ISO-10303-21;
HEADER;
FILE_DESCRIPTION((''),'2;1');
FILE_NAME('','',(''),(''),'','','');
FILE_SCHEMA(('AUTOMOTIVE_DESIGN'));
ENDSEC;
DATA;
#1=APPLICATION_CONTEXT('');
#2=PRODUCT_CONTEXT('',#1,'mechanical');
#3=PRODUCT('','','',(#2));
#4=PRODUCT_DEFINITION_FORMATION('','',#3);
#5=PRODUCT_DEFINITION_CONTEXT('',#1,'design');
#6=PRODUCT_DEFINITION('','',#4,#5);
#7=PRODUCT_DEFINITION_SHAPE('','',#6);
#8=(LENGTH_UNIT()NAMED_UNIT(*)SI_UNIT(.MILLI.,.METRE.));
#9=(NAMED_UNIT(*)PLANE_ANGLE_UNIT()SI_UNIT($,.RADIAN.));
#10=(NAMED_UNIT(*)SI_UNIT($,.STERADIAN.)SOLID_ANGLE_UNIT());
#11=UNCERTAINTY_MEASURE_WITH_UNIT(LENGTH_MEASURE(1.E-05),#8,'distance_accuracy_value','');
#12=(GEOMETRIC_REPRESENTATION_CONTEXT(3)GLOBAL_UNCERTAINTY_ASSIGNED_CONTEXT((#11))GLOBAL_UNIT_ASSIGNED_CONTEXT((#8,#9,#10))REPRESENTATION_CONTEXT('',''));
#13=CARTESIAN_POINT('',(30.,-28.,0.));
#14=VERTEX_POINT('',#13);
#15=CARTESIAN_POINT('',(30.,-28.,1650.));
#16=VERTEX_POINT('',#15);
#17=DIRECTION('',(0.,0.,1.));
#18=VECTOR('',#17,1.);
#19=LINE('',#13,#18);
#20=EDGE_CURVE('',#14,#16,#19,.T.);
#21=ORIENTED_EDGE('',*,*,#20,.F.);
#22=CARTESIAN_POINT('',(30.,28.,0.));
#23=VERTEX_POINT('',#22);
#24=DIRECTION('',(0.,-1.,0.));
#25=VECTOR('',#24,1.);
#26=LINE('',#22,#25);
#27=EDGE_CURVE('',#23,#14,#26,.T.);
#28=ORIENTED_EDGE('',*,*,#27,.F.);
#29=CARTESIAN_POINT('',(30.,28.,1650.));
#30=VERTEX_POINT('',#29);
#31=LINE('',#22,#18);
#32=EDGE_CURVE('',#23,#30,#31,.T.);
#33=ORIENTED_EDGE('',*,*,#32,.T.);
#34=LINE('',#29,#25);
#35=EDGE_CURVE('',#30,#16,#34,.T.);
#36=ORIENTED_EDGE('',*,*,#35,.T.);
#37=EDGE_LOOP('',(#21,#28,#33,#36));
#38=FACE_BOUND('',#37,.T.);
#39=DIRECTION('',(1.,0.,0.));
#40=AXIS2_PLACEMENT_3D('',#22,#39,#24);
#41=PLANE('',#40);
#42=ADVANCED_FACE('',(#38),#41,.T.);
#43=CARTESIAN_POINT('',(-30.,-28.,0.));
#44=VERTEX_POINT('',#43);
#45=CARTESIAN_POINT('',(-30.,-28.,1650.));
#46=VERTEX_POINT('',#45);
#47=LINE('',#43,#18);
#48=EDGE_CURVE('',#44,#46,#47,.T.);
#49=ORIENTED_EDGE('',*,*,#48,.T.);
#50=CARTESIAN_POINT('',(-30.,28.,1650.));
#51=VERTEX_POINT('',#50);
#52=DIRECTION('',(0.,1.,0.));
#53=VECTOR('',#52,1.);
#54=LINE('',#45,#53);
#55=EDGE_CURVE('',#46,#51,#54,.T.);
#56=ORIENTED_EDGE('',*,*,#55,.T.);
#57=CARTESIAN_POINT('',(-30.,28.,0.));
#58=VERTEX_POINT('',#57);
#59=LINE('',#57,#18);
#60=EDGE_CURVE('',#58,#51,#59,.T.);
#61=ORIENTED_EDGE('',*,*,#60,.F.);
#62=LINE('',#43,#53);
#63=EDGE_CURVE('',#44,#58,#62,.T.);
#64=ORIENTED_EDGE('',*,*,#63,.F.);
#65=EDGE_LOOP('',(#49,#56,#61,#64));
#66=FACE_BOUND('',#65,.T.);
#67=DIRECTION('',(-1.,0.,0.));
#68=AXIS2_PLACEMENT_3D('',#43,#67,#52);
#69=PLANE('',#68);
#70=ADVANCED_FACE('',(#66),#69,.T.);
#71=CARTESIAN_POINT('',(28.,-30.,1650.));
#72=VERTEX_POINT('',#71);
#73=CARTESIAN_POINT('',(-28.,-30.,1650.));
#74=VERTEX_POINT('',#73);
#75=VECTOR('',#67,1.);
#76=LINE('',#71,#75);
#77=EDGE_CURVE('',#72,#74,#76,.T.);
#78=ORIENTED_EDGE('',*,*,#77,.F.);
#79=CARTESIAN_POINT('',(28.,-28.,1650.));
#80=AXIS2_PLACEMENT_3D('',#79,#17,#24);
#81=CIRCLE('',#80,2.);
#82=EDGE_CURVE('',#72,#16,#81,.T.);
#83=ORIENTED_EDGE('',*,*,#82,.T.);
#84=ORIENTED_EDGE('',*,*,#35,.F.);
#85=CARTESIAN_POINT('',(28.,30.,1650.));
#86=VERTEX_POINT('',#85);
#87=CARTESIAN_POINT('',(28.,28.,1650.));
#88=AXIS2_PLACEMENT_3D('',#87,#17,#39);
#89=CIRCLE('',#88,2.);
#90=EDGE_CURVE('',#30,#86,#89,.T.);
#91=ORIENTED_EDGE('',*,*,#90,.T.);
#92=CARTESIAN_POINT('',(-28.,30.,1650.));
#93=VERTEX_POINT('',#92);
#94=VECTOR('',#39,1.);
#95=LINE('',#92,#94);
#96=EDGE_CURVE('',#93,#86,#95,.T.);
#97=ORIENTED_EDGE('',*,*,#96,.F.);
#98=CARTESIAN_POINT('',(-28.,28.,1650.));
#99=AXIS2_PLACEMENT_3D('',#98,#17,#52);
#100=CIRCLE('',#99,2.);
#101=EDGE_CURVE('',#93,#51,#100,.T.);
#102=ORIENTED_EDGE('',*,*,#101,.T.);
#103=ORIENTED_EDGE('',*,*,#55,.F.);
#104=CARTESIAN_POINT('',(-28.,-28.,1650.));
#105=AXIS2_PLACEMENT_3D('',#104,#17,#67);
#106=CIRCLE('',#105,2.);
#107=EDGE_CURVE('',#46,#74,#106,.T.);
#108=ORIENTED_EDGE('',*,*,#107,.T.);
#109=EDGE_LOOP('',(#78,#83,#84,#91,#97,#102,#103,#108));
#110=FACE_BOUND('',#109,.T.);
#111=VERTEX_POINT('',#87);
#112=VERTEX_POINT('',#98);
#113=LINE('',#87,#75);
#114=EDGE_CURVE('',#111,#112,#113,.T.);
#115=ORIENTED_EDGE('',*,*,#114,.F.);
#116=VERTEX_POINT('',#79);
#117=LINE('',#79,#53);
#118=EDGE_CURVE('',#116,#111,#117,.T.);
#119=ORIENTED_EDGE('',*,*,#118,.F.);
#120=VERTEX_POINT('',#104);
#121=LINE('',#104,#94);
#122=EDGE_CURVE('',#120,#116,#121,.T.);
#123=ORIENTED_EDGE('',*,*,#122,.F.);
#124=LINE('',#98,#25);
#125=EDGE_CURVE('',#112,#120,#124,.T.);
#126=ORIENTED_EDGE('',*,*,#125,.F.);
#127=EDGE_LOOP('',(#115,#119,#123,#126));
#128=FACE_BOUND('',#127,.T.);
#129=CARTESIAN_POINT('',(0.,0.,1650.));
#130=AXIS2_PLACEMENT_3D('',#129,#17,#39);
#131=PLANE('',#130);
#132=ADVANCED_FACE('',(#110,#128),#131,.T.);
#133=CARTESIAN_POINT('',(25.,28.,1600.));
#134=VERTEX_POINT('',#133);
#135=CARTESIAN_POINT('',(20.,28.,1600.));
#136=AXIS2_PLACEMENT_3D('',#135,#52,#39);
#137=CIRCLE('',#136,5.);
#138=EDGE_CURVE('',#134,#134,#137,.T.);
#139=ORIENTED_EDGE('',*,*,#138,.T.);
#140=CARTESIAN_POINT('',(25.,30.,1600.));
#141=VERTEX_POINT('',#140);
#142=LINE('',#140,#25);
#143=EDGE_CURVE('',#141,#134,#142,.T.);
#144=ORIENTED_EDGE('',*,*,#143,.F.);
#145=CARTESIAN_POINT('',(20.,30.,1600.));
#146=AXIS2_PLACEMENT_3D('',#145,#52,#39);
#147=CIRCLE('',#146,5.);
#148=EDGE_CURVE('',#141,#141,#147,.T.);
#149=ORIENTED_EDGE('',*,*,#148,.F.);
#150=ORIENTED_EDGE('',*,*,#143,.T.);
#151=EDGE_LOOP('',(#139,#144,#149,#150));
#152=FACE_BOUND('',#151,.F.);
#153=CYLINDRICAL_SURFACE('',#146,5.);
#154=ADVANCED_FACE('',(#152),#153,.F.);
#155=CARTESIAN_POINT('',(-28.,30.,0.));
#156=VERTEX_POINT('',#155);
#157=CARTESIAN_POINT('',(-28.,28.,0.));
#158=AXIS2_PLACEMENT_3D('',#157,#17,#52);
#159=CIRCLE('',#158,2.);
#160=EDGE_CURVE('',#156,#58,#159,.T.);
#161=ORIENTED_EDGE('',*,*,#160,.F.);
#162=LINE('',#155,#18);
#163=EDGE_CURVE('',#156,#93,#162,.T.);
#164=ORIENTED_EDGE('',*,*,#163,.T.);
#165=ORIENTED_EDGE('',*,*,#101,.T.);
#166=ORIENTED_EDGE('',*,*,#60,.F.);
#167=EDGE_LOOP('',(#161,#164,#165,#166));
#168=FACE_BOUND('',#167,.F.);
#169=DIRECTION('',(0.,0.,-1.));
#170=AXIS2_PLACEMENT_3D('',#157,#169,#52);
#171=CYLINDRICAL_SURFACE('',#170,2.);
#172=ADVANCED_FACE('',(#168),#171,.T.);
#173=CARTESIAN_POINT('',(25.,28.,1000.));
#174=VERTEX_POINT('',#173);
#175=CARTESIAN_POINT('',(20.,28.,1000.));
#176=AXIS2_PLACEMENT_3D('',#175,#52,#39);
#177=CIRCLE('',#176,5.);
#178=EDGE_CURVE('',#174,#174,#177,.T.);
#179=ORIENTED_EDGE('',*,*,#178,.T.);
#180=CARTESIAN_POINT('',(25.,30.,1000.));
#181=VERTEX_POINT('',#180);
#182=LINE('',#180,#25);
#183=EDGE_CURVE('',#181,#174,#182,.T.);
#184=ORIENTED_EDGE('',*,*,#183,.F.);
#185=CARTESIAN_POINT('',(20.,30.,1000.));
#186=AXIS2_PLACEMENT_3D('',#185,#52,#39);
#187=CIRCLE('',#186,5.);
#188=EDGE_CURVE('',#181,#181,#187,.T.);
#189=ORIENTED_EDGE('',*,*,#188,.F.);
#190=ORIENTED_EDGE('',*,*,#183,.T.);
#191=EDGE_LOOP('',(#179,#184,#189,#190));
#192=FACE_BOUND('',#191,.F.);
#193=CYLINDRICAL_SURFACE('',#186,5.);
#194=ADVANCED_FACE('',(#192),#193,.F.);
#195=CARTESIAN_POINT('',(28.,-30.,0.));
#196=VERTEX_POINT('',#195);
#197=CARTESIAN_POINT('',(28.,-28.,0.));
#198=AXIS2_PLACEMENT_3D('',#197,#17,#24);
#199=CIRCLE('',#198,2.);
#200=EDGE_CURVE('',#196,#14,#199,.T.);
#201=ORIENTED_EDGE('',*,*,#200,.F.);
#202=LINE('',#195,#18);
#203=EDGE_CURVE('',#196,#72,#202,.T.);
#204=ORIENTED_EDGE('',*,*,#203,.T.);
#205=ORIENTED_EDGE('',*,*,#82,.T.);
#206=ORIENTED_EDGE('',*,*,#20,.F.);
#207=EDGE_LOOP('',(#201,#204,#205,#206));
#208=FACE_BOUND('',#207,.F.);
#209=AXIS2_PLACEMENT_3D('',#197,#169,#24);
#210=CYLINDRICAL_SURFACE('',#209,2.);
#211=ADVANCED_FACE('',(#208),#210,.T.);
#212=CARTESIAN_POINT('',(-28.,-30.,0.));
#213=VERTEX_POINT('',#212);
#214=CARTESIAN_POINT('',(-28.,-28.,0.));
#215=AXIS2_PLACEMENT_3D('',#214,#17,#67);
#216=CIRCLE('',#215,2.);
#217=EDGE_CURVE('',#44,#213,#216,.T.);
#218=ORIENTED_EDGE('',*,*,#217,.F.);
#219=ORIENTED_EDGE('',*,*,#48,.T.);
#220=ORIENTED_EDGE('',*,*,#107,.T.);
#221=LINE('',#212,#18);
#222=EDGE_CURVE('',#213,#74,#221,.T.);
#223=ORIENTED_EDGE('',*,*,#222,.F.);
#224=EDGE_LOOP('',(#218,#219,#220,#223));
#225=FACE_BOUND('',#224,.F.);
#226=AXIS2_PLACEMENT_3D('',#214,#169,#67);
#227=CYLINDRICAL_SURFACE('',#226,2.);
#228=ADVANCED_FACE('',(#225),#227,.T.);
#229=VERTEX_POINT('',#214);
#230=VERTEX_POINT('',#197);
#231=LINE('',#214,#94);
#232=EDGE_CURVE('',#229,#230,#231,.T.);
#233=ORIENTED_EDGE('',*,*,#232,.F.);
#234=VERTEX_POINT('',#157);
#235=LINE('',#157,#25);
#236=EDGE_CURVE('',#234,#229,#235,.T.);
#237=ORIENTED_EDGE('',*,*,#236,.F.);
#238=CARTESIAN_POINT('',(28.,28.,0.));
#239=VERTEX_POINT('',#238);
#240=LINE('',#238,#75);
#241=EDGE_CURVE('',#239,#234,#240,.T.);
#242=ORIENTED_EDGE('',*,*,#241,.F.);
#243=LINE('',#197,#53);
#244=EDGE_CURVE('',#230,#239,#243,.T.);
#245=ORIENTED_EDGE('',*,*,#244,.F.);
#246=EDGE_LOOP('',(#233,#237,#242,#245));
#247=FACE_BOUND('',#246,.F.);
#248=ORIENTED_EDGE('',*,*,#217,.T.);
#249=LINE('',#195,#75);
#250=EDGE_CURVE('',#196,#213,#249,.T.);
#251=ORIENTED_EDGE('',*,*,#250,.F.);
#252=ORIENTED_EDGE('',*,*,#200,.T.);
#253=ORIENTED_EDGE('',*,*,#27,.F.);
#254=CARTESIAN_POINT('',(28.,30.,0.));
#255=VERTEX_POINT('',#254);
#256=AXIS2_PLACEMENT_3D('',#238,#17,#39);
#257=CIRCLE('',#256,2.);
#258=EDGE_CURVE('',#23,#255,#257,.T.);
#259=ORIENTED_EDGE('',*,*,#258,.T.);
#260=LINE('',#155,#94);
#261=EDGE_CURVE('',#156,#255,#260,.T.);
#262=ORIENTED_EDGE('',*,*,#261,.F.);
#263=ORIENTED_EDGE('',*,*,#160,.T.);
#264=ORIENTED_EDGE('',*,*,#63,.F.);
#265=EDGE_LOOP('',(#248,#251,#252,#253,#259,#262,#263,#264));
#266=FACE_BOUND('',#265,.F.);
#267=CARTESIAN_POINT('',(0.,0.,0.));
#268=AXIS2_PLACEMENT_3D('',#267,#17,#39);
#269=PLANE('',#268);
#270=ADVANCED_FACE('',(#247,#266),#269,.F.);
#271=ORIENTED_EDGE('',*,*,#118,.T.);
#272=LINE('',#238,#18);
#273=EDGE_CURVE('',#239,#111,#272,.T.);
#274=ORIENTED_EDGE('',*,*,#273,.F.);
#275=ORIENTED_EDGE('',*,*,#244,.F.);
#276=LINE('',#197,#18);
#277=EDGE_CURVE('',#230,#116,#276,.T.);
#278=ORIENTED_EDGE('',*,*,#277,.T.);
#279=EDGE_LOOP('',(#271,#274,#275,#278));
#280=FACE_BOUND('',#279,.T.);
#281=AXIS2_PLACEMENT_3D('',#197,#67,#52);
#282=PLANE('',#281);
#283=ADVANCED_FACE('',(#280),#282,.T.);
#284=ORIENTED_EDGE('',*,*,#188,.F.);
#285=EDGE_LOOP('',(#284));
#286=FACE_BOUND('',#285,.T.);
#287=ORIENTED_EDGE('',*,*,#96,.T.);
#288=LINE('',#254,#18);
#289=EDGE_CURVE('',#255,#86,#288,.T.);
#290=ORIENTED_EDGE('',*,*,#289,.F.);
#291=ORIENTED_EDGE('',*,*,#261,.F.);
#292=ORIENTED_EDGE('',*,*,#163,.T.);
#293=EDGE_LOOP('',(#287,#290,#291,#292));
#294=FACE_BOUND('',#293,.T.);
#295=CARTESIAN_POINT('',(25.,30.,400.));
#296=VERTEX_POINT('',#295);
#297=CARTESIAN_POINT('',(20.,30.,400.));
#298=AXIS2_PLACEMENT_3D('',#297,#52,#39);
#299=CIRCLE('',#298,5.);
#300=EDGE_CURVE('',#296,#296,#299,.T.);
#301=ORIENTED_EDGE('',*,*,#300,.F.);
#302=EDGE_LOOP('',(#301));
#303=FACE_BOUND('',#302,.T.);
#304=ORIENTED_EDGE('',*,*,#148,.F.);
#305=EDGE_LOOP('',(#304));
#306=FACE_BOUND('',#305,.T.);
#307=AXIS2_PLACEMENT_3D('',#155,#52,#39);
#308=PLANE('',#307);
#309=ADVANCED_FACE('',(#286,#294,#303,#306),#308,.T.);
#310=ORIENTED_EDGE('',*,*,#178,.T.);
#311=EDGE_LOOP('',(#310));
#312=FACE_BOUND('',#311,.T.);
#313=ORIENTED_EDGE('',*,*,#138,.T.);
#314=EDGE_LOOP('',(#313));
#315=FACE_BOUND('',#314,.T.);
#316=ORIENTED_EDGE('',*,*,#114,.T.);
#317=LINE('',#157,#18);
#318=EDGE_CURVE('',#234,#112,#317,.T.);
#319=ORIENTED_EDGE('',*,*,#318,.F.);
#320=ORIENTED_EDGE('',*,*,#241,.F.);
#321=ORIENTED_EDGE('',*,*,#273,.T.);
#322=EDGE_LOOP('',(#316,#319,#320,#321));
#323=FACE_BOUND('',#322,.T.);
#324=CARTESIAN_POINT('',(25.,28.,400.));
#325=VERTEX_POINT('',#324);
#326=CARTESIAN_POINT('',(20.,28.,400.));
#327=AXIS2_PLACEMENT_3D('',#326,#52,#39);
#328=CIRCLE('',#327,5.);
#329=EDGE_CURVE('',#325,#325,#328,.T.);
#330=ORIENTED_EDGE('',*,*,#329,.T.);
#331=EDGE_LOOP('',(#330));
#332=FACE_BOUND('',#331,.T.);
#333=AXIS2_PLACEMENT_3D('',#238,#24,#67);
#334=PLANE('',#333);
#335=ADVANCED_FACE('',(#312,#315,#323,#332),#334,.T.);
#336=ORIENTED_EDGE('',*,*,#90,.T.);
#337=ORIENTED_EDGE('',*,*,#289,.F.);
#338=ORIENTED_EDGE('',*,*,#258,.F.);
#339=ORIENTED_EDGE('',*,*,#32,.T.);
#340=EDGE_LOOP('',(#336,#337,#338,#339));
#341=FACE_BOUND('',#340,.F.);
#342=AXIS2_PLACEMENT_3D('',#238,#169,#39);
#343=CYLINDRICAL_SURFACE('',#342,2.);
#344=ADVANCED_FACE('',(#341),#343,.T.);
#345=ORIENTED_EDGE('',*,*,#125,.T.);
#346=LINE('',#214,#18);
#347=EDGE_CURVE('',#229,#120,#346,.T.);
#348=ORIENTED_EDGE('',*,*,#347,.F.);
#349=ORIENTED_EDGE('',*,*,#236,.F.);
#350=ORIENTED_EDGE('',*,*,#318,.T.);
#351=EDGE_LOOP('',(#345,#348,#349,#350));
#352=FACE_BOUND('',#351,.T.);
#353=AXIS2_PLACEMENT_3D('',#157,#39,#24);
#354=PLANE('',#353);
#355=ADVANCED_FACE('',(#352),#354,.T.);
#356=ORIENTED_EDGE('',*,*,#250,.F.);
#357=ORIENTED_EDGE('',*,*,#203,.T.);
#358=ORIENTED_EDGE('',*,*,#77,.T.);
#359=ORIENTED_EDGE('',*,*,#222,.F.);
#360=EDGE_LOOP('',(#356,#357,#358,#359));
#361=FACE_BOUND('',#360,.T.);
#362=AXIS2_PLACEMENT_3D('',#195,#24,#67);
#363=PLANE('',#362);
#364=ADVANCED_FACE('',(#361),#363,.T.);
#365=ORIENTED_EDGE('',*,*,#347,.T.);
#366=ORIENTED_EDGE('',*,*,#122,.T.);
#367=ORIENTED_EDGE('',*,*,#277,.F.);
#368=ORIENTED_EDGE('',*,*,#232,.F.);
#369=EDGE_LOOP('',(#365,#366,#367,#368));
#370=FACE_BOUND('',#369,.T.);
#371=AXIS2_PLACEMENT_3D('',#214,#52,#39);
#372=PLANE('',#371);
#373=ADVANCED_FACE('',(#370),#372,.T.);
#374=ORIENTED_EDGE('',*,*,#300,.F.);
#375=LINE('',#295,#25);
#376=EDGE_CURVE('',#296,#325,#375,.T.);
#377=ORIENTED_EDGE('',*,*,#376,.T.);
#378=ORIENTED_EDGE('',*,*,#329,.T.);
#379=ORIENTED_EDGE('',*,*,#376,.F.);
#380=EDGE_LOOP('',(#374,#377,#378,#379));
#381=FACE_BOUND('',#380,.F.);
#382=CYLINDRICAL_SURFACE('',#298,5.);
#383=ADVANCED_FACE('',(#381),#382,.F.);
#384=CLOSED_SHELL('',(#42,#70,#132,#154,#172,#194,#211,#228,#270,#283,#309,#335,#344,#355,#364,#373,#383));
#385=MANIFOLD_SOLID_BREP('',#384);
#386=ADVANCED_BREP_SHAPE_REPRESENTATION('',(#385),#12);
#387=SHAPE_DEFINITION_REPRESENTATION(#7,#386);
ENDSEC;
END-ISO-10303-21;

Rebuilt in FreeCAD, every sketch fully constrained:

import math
import FreeCAD as App
import Part
import Sketcher

V = App.Vector

doc = App.newDocument("Part")
params = doc.addObject("Spreadsheet::Sheet", "Params")
for row, (alias, value) in enumerate([
    ("sketch1_radius", "2 mm"),
    ("sketch1_width", "56 mm"),
    ("pad1_length", "1650 mm"),
    ("sketch2_diameter", "10 mm"),
    ("pocket1_length", "2 mm"),
], start=1):
    params.set(f"A{row}", alias)
    params.set(f"B{row}", "=" + value)
    params.setAlias(f"B{row}", alias)

body = doc.addObject("PartDesign::Body", "Body")

sketch1 = body.newObject("Sketcher::SketchObject", "Sketch")
sketch1.AttachmentSupport = (doc.getObject("XY_Plane"), [""])
sketch1.MapMode = "FlatFace"
sketch1.addGeometry([
    Part.LineSegment(V(28, 30, 0), V(-28, 30, 0)),
    Part.ArcOfCircle(Part.Circle(V(-28, 28, 0), V(0, 0, 1), 2), math.radians(90), math.radians(180)),
    Part.LineSegment(V(-30, 28, 0), V(-30, -28, 0)),
    Part.ArcOfCircle(Part.Circle(V(-28, -28, 0), V(0, 0, 1), 2), math.radians(180), math.radians(270)),
    Part.LineSegment(V(-28, -30, 0), V(28, -30, 0)),
    Part.ArcOfCircle(Part.Circle(V(28, -28, 0), V(0, 0, 1), 2), math.radians(-90), math.radians(0)),
    Part.LineSegment(V(30, -28, 0), V(30, 28, 0)),
    Part.ArcOfCircle(Part.Circle(V(28, 28, 0), V(0, 0, 1), 2), math.radians(0), math.radians(90)),
    Part.LineSegment(V(-28, 28, 0), V(28, 28, 0)),
    Part.LineSegment(V(28, 28, 0), V(28, -28, 0)),
    Part.LineSegment(V(28, -28, 0), V(-28, -28, 0)),
    Part.LineSegment(V(-28, -28, 0), V(-28, 28, 0)),
], False)
sketch1.addConstraint([
    Sketcher.Constraint("Tangent", 0, 2, 1, 1),
    Sketcher.Constraint("Tangent", 1, 2, 2, 1),
    Sketcher.Constraint("Tangent", 2, 2, 3, 1),
    Sketcher.Constraint("Tangent", 3, 2, 4, 1),
    Sketcher.Constraint("Tangent", 4, 2, 5, 1),
    Sketcher.Constraint("Tangent", 5, 2, 6, 1),
    Sketcher.Constraint("Tangent", 6, 2, 7, 1),
    Sketcher.Constraint("Tangent", 7, 2, 0, 1),
    Sketcher.Constraint("Coincident", 8, 2, 9, 1),
    Sketcher.Constraint("Coincident", 9, 2, 10, 1),
    Sketcher.Constraint("Coincident", 10, 2, 11, 1),
    Sketcher.Constraint("Coincident", 11, 2, 8, 1),
    Sketcher.Constraint("Horizontal", 0),
    Sketcher.Constraint("Vertical", 2),
    Sketcher.Constraint("Horizontal", 4),
    Sketcher.Constraint("Vertical", 6),
    Sketcher.Constraint("Horizontal", 8),
    Sketcher.Constraint("Vertical", 9),
    Sketcher.Constraint("Horizontal", 10),
    Sketcher.Constraint("Vertical", 11),
    Sketcher.Constraint("Coincident", 8, 2, 7, 3),
    Sketcher.Constraint("Coincident", 9, 2, 5, 3),
    Sketcher.Constraint("Coincident", 10, 2, 3, 3),
    Sketcher.Constraint("Equal", 1, 3),
    Sketcher.Constraint("Symmetric", 1, 3, 5, 3, -1, 1),
    Sketcher.Constraint("Equal", 10, 2),
    Sketcher.Constraint("Radius", 1, 2.0),
    Sketcher.Constraint("DistanceX", 0, 2, 0, 1, 56.0),
])
sketch1.setExpression("Constraints[26]", "Params.sketch1_radius")
sketch1.setExpression("Constraints[27]", "Params.sketch1_width")
pad1 = body.newObject("PartDesign::Pad", "Pad")
pad1.Profile = sketch1
pad1.setExpression("Length", "Params.pad1_length")

sketch2 = body.newObject("Sketcher::SketchObject", "Sketch001")
sketch2.AttachmentSupport = (doc.getObject("XZ_Plane"), [""])
sketch2.MapMode = "FlatFace"
sketch2.AttachmentOffset = App.Placement(V(0, 0, -30), App.Rotation())
sketch2.addGeometry([
    Part.Circle(V(20, 1000, 0), V(0, 0, 1), 5),
    Part.Circle(V(20, 400, 0), V(0, 0, 1), 5),
    Part.Circle(V(20, 1600, 0), V(0, 0, 1), 5),
], False)
sketch2.addConstraint([
    Sketcher.Constraint("Equal", 0, 1),
    Sketcher.Constraint("Equal", 1, 2),
    Sketcher.Constraint("Vertical", 0, 3, 1, 3),
    Sketcher.Constraint("Vertical", 1, 3, 2, 3),
    Sketcher.Constraint("Diameter", 0, 10.0),
    Sketcher.Constraint("DistanceY", -1, 1, 0, 3, 1000.0),
    Sketcher.Constraint("DistanceY", 1, 3, 0, 3, 600.0),
    Sketcher.Constraint("DistanceY", 0, 3, 2, 3, 600.0),
    Sketcher.Constraint("DistanceX", -1, 1, 0, 3, 20.0),
])
sketch2.setExpression("Constraints[4]", "Params.sketch2_diameter")
pocket1 = body.newObject("PartDesign::Pocket", "Pocket")
pocket1.Profile = sketch2
pocket1.setExpression("Length", "Params.pocket1_length")
pocket1.Reversed = True

doc.recompute()
